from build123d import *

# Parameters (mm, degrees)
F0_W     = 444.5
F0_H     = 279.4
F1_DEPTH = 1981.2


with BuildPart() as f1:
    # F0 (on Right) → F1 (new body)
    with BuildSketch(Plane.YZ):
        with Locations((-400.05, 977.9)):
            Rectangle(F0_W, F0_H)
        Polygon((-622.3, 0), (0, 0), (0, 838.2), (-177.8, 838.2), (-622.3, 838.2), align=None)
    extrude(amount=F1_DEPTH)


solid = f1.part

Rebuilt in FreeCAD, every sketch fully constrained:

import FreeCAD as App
import Part
import Sketcher
Q = App.Units.Quantity


def add_polygon(sketch, points):
    """Adds a closed chain of lines whose ends are joined by coincident constraints."""
    first, n = sketch.GeometryCount, len(points)
    for a, b in zip(points, points[1:] + points[:1]):
        sketch.addGeometry(Part.LineSegment(App.Vector(*a, 0), App.Vector(*b, 0)), False)
    for i in range(n):
        sketch.addConstraint(Sketcher.Constraint("Coincident", first + i, 2, first + (i + 1) % n, 1))

doc = App.newDocument("Part")
body = doc.addObject("PartDesign::Body", "Body")

# Sketch on YZ plane
sketch1 = body.newObject("Sketcher::SketchObject", "Sketch")
sketch1.AttachmentSupport = (doc.getObject("YZ_Plane"), [""])
sketch1.MapMode = "FlatFace"
add_polygon(sketch1, [(-622, 1118), (-622, 0), (0, 0), (0, 838), (-178, 838), (-178, 1118)])  # lines 0-5
sketch1.addConstraint([
    Sketcher.Constraint("Vertical", 0),
    Sketcher.Constraint("Horizontal", 1),
    Sketcher.Constraint("Vertical", 2),
    Sketcher.Constraint("Horizontal", 3),
    Sketcher.Constraint("Vertical", 4),
    Sketcher.Constraint("Horizontal", 5),
    Sketcher.Constraint("Coincident", 1, 2, -1, 1),
    Sketcher.Constraint("DistanceX", 3, 2, 3, 1, Q("7 in")),
    Sketcher.Constraint("DistanceY", 0, 2, 0, 1, Q("44 in")),
    Sketcher.Constraint("DistanceY", 2, 1, 2, 2, Q("33 in")),
    Sketcher.Constraint("DistanceX", 1, 1, 1, 2, Q("24.5 in")),
])
pad1 = body.newObject("PartDesign::Pad", "Pad")
pad1.Profile = sketch1
pad1.Length = Q("78 in")

doc.recompute()
